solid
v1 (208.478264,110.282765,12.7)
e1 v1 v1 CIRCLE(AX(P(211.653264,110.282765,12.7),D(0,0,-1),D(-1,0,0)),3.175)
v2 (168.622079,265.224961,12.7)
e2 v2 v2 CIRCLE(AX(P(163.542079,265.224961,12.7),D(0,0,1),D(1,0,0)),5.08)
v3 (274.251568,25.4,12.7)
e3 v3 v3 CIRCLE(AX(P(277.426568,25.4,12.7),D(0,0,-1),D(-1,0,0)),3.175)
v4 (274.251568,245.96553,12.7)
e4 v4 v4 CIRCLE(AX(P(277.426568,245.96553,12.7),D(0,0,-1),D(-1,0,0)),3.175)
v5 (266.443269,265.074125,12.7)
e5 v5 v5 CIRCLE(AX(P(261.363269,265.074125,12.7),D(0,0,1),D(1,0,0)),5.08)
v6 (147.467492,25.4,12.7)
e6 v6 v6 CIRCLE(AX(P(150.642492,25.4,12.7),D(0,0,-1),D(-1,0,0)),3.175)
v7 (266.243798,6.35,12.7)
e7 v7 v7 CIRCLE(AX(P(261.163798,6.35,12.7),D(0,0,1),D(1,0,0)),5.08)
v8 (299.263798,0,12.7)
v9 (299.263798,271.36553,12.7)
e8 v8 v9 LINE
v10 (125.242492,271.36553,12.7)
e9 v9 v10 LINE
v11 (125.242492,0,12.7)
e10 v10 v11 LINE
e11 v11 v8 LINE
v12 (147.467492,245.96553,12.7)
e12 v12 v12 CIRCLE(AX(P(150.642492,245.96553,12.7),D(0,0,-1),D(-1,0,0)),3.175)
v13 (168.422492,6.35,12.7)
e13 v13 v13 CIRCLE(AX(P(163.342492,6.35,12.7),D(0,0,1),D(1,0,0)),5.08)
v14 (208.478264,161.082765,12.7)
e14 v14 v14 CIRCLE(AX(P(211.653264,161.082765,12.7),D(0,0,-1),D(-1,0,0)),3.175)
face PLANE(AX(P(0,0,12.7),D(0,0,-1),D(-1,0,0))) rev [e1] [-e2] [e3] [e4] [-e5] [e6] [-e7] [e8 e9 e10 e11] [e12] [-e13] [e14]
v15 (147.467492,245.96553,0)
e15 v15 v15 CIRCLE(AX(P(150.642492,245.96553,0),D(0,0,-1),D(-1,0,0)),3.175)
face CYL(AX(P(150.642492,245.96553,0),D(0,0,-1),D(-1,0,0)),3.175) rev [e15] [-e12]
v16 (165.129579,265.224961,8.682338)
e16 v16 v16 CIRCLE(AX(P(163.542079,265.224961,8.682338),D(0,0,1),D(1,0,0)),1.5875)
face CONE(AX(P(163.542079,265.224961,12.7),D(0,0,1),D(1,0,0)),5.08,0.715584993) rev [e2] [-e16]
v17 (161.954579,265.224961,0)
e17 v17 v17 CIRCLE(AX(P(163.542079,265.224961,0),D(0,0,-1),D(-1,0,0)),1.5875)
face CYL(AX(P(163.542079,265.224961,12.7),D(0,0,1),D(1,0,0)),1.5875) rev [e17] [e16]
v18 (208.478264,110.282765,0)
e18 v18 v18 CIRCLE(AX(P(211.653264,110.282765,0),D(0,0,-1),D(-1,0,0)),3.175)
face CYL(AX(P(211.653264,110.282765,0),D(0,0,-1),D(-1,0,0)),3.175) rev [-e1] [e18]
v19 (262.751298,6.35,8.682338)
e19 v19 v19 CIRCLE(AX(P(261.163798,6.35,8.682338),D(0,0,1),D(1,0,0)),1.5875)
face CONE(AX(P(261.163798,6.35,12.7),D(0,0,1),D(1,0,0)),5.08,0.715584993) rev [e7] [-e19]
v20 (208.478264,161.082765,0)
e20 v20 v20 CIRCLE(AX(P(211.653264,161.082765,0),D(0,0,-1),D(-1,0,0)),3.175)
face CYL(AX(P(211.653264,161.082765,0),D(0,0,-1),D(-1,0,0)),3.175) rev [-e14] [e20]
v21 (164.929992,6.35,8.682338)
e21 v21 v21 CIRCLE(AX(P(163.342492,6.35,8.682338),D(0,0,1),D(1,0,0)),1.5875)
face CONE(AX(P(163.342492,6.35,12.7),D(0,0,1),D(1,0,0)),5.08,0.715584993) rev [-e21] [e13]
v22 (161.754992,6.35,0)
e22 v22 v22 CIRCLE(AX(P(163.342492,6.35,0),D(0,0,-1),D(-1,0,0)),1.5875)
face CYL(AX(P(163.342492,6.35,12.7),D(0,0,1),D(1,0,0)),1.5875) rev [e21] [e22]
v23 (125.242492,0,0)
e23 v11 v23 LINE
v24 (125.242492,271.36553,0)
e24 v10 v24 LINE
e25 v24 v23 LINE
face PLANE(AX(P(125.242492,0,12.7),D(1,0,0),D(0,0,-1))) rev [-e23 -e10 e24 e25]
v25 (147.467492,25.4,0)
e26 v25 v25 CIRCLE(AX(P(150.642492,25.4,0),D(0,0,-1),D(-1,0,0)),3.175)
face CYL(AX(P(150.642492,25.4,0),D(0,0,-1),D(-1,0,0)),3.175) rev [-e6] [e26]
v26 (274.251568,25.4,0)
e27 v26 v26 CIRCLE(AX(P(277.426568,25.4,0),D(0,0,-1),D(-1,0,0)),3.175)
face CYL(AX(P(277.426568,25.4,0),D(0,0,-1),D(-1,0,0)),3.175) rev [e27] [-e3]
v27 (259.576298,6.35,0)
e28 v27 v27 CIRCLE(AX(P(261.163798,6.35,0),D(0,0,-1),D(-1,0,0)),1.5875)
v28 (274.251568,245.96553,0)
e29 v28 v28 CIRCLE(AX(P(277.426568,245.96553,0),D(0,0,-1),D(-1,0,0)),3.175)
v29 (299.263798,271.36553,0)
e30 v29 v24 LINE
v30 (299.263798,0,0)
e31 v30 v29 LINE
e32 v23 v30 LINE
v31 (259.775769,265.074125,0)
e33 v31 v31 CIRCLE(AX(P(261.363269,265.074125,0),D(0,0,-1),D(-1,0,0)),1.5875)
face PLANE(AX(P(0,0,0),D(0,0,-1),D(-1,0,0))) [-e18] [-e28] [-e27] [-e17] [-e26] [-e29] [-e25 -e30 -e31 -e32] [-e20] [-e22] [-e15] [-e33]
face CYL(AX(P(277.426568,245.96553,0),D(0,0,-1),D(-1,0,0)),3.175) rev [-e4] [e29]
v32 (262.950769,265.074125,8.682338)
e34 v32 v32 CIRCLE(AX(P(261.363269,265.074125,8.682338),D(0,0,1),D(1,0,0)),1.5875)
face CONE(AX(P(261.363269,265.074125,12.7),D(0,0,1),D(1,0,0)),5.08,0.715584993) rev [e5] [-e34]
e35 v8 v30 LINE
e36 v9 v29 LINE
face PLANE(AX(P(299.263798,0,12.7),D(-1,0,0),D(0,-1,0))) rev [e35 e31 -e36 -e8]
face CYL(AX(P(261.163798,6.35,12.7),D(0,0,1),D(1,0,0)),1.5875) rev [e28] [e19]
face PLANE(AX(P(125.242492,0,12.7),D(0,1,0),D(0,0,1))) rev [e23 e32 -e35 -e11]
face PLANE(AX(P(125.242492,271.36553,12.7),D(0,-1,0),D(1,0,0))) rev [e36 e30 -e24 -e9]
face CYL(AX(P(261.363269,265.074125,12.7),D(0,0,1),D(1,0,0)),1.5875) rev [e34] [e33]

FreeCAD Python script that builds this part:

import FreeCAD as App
import Part
import Sketcher
Q = App.Units.Quantity


def add_polygon(sketch, points):
    """Adds a closed chain of lines whose ends are joined by coincident constraints."""
    first, n = sketch.GeometryCount, len(points)
    for a, b in zip(points, points[1:] + points[:1]):
        sketch.addGeometry(Part.LineSegment(App.Vector(*a, 0), App.Vector(*b, 0)), False)
    for i in range(n):
        sketch.addConstraint(Sketcher.Constraint("Coincident", first + i, 2, first + (i + 1) % n, 1))

doc = App.newDocument("Part")
body = doc.addObject("PartDesign::Body", "Body")

sketch1 = doc.addObject("Sketcher::SketchObject", "Sketch")
body.addObject(sketch1)
sketch1.AttachmentSupport = (doc.XY_Plane, [""])
sketch1.MapMode = "FlatFace"
add_polygon(sketch1, [(125.242492, 271.36553), (125.242492, 0), (299.263798, 0), (299.263798, 271.36553)])
sketch1.addConstraint([
    Sketcher.Constraint("Vertical", 0),
    Sketcher.Constraint("Horizontal", 1),
    Sketcher.Constraint("Vertical", 2),
    Sketcher.Constraint("Horizontal", 3),
    Sketcher.Constraint("PointOnObject", 0, 2, -1),
    Sketcher.Constraint("DistanceY", 0, 2, 0, 1, 271.36553),
    Sketcher.Constraint("DistanceX", 1, 1, 1, 2, 174.021306),
    Sketcher.Constraint("DistanceX", -1, 1, 0, 2, 125.242492),
])
pad1 = doc.addObject("PartDesign::Pad", "Pad")
body.addObject(pad1)
pad1.Profile = sketch1
pad1.Length = Q("0.5 in")

sketch2 = doc.addObject("Sketcher::SketchObject", "Sketch001")
body.addObject(sketch2)
sketch2.AttachmentSupport = (doc.XY_Plane, [""])
sketch2.MapMode = "FlatFace"
sketch2.addGeometry([
    Part.Circle(App.Vector(277.426568, 245.96553, 0), App.Vector(0, 0, 1), 3.175),
    Part.Circle(App.Vector(211.653264, 161.082765, 0), App.Vector(0, 0, 1), 3.175),
    Part.Circle(App.Vector(150.642492, 245.96553, 0), App.Vector(0, 0, 1), 3.175),
    Part.Circle(App.Vector(211.653264, 110.282765, 0), App.Vector(0, 0, 1), 3.175),
    Part.Circle(App.Vector(277.426568, 25.4, 0), App.Vector(0, 0, 1), 3.175),
    Part.Circle(App.Vector(150.642492, 25.4, 0), App.Vector(0, 0, 1), 3.175),
], False)
sketch2.addConstraint([
    Sketcher.Constraint("Equal", 0, 1),
    Sketcher.Constraint("Equal", 1, 2),
    Sketcher.Constraint("Equal", 2, 3),
    Sketcher.Constraint("Equal", 3, 4),
    Sketcher.Constraint("Equal", 4, 5),
    Sketcher.Constraint("Horizontal", 0, 3, 2, 3),
    Sketcher.Constraint("Horizontal", 4, 3, 5, 3),
    Sketcher.Constraint("Vertical", 1, 3, 3, 3),
    Sketcher.Constraint("Vertical", 0, 3, 4, 3),
    Sketcher.Constraint("Vertical", 2, 3, 5, 3),
    Sketcher.Constraint("Diameter", 0, Q("0.25 in")),
    Sketcher.Constraint("DistanceY", -1, 1, 4, 3, Q("1 in")),
    Sketcher.Constraint("DistanceY", 3, 3, 1, 3, Q("2 in")),
    Sketcher.Constraint("DistanceX", 1, 3, 0, 3, Q("2.5895002 in")),
    Sketcher.Constraint("DistanceX", -1, 1, 0, 3, 277.426568),
    Sketcher.Constraint("DistanceY", -1, 1, 0, 3, 245.96553),
    Sketcher.Constraint("DistanceX", -1, 1, 2, 3, 150.642492),
    Sketcher.Constraint("DistanceY", -1, 1, 1, 3, 161.082765),
])
doc.recompute()
hole = doc.addObject("PartDesign::Hole", "Hole")
body.addObject(hole)
hole.Profile = sketch2
hole.ThreadType = "None"
hole.Diameter = Q("0.25 in")
hole.DepthType = "ThroughAll"
hole.Reversed = True

sketch3 = doc.addObject("Sketcher::SketchObject", "Sketch002")
body.addObject(sketch3)
sketch3.AttachmentSupport = (doc.XY_Plane, [""])
sketch3.MapMode = "FlatFace"
sketch3.AttachmentOffset = App.Placement(App.Vector(0, 0, 0.5 * 25.4), App.Rotation())
sketch3.addGeometry([
    Part.Circle(App.Vector(261.363269, 265.074125, 0), App.Vector(0, 0, 1), 1.5875),
    Part.Circle(App.Vector(163.342492, 6.35, 0), App.Vector(0, 0, 1), 1.5875),
    Part.Circle(App.Vector(261.163798, 6.35, 0), App.Vector(0, 0, 1), 1.5875),
    Part.Circle(App.Vector(163.542079, 265.224961, 0), App.Vector(0, 0, 1), 1.5875),
], False)
sketch3.addConstraint([
    Sketcher.Constraint("Equal", 0, 1),
    Sketcher.Constraint("Equal", 1, 2),
    Sketcher.Constraint("Equal", 2, 3),
    Sketcher.Constraint("Horizontal", 1, 3, 2, 3),
    Sketcher.Constraint("Diameter", 0, Q("0.125 in")),
    Sketcher.Constraint("DistanceY", -1, 1, 1, 3, Q("0.25 in")),
    Sketcher.Constraint("DistanceX", -1, 1, 0, 3, 261.363269),
    Sketcher.Constraint("DistanceX", -1, 1, 1, 3, 163.342492),
    Sketcher.Constraint("DistanceX", -1, 1, 3, 3, 163.542079),
    Sketcher.Constraint("DistanceY", -1, 1, 3, 3, 265.224961),
    Sketcher.Constraint("DistanceX", 2, 3, 0, 3, 0.199471),
    Sketcher.Constraint("DistanceY", -1, 1, 0, 3, 265.074125),
])
doc.recompute()
hole2 = doc.addObject("PartDesign::Hole", "Hole001")
body.addObject(hole2)
hole2.Profile = sketch3
hole2.ThreadType = "None"
hole2.Diameter = Q("0.125 in")
hole2.DepthType = "Dimension"
hole2.Depth = Q("1.25 in")
hole2.DrillPoint = "Angled"
hole2.DrillPointAngle = 118
hole2.HoleCutType = "Countersink"
hole2.HoleCutDiameter = Q("0.4 in")
hole2.HoleCutCountersinkAngle = 82

doc.recompute()
